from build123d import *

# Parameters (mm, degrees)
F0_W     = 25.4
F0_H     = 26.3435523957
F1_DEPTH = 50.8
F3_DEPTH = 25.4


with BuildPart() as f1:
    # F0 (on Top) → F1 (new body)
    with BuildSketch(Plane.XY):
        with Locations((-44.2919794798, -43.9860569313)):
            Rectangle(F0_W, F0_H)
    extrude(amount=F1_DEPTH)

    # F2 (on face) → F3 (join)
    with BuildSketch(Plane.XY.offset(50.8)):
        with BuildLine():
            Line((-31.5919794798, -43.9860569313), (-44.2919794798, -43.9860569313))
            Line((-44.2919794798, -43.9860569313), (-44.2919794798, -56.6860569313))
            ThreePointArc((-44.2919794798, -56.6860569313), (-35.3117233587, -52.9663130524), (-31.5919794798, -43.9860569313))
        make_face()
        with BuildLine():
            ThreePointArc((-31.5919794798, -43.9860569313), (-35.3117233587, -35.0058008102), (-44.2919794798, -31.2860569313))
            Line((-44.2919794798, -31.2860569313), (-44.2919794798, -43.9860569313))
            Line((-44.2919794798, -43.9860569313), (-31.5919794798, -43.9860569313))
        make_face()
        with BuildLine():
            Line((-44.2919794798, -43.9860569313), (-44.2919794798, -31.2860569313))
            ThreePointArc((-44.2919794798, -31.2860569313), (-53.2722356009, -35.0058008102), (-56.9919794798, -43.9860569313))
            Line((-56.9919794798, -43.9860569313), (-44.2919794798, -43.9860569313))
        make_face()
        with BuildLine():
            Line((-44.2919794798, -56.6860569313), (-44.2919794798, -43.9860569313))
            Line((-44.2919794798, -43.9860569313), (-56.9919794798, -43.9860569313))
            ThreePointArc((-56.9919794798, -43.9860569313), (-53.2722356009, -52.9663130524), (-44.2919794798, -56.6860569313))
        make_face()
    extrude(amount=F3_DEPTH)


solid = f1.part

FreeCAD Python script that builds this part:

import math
import FreeCAD as App
import Part
import Sketcher

V = App.Vector
Q = App.Units.Quantity


def add_polygon(sketch, points):
    """Adds a closed chain of lines whose ends are joined by coincident constraints."""
    first, n = sketch.GeometryCount, len(points)
    for a, b in zip(points, points[1:] + points[:1]):
        sketch.addGeometry(Part.LineSegment(App.Vector(*a, 0), App.Vector(*b, 0)), False)
    for i in range(n):
        sketch.addConstraint(Sketcher.Constraint("Coincident", first + i, 2, first + (i + 1) % n, 1))

doc = App.newDocument("Part")
params = doc.addObject("Spreadsheet::Sheet", "Params")
for row, (alias, value) in enumerate([
    ("sketch1_width", "1 in"),
    ("pad1_length", "2 in"),
    ("sketch2_radius", "0.5 in"),
    ("pad2_length", "1 in"),
], start=1):
    params.set(f"A{row}", alias)
    params.set(f"B{row}", "=" + value)
    params.setAlias(f"B{row}", alias)

body = doc.addObject("PartDesign::Body", "Body")

# Sketch on XY plane
sketch1 = doc.addObject("Sketcher::SketchObject", "Sketch")
body.addObject(sketch1)
sketch1.AttachmentSupport = (doc.XY_Plane, [""])
sketch1.MapMode = "FlatFace"
add_polygon(sketch1, [(-56.991979, -30.814281), (-56.991979, -57.157833), (-31.591979, -57.157833), (-31.591979, -30.814281)])  # lines 0-3
sketch1.addConstraint(Sketcher.Constraint("Vertical", 0))
sketch1.addConstraint(Sketcher.Constraint("Horizontal", 1))
sketch1.addConstraint(Sketcher.Constraint("Vertical", 2))
sketch1.addConstraint(Sketcher.Constraint("Horizontal", 3))
sketch1.addConstraint(Sketcher.Constraint("DistanceX", 1, 1, 1, 2, Q("1 in")))
sketch1.addConstraint(Sketcher.Constraint("DistanceY", 0, 2, 0, 1, Q("26.343552 mm")))
sketch1.addConstraint(Sketcher.Constraint("DistanceX", 0, 2, -1, 1, Q("56.991979 mm")))
sketch1.addConstraint(Sketcher.Constraint("DistanceY", 2, 2, -1, 1, Q("30.814281 mm")))
sketch1.setExpression("Constraints[8]", "Params.sketch1_width")
pad1 = doc.addObject("PartDesign::Pad", "Pad")
body.addObject(pad1)
pad1.Profile = sketch1
pad1.setExpression("Length", "Params.pad1_length")

# Sketch on XY plane
sketch2 = doc.addObject("Sketcher::SketchObject", "Sketch001")
body.addObject(sketch2)
sketch2.AttachmentSupport = (doc.XY_Plane, [""])
sketch2.MapMode = "FlatFace"
sketch2.AttachmentOffset = App.Placement(V(0, 0, 2 * 25.4), App.Rotation())
sketch2.addGeometry(Part.ArcOfCircle(Part.Circle(V(-44.291979, -43.986057, 0), V(0, 0, 1), 12.7), math.radians(-90), math.radians(0)), False)
sketch2.addGeometry(Part.ArcOfCircle(Part.Circle(V(-44.291979, -43.986057, 0), V(0, 0, 1), 12.7), math.radians(0), math.radians(90)), False)
sketch2.addGeometry(Part.ArcOfCircle(Part.Circle(V(-44.291979, -43.986057, 0), V(0, 0, 1), 12.7), math.radians(90), math.radians(180)), False)
sketch2.addGeometry(Part.ArcOfCircle(Part.Circle(V(-44.291979, -43.986057, 0), V(0, 0, 1), 12.7), math.radians(180), math.radians(270)), False)
sketch2.addConstraint(Sketcher.Constraint("Tangent", 0, 2, 1, 1))
sketch2.addConstraint(Sketcher.Constraint("Tangent", 1, 2, 2, 1))
sketch2.addConstraint(Sketcher.Constraint("Tangent", 2, 2, 3, 1))
sketch2.addConstraint(Sketcher.Constraint("Tangent", 3, 2, 0, 1))
sketch2.addConstraint(Sketcher.Constraint("Equal", 0, 1))
sketch2.addConstraint(Sketcher.Constraint("Horizontal", 3, 3, 0, 2))
sketch2.addConstraint(Sketcher.Constraint("Horizontal", 0, 2, 2, 2))
sketch2.addConstraint(Sketcher.Constraint("Vertical", 3, 3, 1, 2))
sketch2.addConstraint(Sketcher.Constraint("Vertical", 1, 2, 3, 2))
sketch2.addConstraint(Sketcher.Constraint("Radius", 0, Q("0.5 in")))
sketch2.addConstraint(Sketcher.Constraint("DistanceX", 0, 3, -1, 1, Q("44.291979 mm")))
sketch2.addConstraint(Sketcher.Constraint("DistanceY", 0, 3, -1, 1, Q("43.986057 mm")))
sketch2.setExpression("Constraints[9]", "Params.sketch2_radius")
pad2 = doc.addObject("PartDesign::Pad", "Pad001")
body.addObject(pad2)
pad2.Profile = sketch2
pad2.setExpression("Length", "Params.pad2_length")

doc.recompute()
